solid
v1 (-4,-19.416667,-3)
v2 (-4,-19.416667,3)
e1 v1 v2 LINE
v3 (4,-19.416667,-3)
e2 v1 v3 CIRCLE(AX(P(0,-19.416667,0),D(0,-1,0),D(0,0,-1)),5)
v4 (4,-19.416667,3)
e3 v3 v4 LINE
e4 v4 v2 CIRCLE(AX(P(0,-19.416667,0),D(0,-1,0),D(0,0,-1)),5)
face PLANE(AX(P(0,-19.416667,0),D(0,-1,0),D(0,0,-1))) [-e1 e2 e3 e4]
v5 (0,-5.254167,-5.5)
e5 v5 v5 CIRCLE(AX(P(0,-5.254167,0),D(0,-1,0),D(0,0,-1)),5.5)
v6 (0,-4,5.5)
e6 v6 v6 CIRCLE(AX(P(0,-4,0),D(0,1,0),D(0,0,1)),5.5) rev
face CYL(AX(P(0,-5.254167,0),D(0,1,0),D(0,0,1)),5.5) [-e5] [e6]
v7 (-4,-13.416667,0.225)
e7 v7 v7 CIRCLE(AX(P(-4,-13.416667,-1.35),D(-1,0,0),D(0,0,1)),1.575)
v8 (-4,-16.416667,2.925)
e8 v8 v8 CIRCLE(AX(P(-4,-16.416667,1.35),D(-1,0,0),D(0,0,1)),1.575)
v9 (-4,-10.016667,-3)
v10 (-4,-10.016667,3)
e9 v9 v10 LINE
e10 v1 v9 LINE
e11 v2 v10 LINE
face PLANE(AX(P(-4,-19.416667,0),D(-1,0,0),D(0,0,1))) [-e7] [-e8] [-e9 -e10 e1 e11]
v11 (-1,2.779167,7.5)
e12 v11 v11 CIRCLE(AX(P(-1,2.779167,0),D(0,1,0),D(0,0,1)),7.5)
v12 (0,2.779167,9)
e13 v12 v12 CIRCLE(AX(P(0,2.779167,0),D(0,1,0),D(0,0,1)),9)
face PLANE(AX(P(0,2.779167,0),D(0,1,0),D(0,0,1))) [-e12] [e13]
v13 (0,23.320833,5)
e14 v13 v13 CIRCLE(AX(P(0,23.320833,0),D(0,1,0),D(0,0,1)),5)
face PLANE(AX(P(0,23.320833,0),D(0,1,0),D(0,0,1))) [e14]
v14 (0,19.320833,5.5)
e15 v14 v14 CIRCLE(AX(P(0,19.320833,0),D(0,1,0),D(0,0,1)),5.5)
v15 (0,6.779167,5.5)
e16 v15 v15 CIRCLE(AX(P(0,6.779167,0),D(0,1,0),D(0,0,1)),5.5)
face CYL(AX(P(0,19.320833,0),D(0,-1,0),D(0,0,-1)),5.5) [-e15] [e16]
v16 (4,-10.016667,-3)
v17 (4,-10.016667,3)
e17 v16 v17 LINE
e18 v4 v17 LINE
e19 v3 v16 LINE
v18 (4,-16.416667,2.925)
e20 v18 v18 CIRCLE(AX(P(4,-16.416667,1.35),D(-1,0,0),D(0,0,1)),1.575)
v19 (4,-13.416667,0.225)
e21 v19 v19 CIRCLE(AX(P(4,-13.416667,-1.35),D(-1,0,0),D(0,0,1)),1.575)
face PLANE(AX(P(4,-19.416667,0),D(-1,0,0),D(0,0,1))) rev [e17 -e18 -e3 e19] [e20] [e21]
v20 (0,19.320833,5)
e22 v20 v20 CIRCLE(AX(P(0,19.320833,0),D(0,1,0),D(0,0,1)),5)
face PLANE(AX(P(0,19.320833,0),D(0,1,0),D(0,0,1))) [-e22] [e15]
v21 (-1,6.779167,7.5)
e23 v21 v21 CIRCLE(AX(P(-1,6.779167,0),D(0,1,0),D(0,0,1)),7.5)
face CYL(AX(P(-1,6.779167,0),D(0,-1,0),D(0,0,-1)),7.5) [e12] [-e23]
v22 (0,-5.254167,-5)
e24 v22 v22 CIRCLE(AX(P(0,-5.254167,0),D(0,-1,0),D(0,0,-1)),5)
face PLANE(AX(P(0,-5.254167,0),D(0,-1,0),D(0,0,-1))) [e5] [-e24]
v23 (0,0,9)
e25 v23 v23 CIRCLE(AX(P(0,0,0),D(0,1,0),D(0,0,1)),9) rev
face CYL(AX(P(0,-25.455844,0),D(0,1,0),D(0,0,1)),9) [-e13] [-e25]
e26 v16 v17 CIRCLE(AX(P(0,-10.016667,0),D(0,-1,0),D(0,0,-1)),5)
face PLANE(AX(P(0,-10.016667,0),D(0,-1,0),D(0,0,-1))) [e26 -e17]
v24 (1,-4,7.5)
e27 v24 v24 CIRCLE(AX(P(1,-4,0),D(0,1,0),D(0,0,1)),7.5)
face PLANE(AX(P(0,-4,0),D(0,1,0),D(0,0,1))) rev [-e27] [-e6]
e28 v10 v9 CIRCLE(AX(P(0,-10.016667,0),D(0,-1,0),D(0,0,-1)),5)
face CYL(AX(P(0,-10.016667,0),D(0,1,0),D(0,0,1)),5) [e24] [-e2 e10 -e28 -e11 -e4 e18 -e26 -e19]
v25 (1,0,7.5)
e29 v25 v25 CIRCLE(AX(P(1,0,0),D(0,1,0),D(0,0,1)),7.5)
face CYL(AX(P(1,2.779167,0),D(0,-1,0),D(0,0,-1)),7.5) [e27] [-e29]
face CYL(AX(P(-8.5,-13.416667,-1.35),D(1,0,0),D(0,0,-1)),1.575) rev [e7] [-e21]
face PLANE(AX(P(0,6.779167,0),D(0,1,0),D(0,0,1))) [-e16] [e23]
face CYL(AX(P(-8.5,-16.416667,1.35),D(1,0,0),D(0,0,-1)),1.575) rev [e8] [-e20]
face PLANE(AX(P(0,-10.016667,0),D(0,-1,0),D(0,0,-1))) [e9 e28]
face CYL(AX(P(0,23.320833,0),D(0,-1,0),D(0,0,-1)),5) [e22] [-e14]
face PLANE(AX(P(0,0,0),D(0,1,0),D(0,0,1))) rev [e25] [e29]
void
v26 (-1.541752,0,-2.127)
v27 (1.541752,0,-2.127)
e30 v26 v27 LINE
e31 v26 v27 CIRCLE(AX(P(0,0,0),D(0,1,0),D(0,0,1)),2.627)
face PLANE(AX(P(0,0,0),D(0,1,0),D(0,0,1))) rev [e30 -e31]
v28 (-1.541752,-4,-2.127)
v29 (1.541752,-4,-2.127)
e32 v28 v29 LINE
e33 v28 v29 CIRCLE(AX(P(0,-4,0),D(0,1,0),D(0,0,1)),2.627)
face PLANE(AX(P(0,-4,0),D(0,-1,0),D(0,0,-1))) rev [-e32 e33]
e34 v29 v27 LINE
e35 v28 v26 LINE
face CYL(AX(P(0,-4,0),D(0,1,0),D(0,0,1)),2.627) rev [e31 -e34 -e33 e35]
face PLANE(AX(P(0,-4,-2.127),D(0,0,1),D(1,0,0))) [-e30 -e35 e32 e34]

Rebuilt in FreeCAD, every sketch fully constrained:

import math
import FreeCAD as App
import Part
import Sketcher
from FreeCAD import Vector

doc = App.newDocument("Part")
body = doc.addObject("PartDesign::Body", "Body")

# Sketch on XZ plane
sketch1 = body.newObject("Sketcher::SketchObject", "Sketch")
sketch1.AttachmentSupport = (doc.getObject("XZ_Plane"), [""])
sketch1.MapMode = "FlatFace"
sketch1.addGeometry(Part.Circle(Vector(-1, 0, 0), Vector(0, 0, 1), 8), False)
sketch1.addConstraint([
    Sketcher.Constraint("PointOnObject", 0, 3, -1),
    Sketcher.Constraint("Diameter", 0, 15.0),
    Sketcher.Constraint("DistanceX", 0, 3, -1, 1, 1.0),
])
pad1 = body.newObject("PartDesign::Pad", "Pad")
pad1.Profile = sketch1
pad1.Length = 6.779167
pad1.Reversed = True

# Sketch on XZ plane
sketch2 = body.newObject("Sketcher::SketchObject", "Sketch001")
sketch2.AttachmentSupport = (doc.getObject("XZ_Plane"), [""])
sketch2.MapMode = "FlatFace"
sketch2.addGeometry([
    Part.ArcOfCircle(Part.Circle(Vector(-1, 0, 0), Vector(0, 0, 1), 8), math.radians(82), math.radians(278)),
    Part.ArcOfCircle(Part.Circle(Vector(1, 0, 0), Vector(0, 0, 1), 8), math.radians(-98), math.radians(98)),
], False)
sketch2.addConstraint([
    Sketcher.Constraint("Coincident", 0, 1, 1, 2),
    Sketcher.Constraint("Coincident", 1, 1, 0, 2),
    Sketcher.Constraint("Equal", 0, 1),
    Sketcher.Constraint("Symmetric", 0, 3, 1, 3, -1, 1),
    Sketcher.Constraint("PointOnObject", 0, 3, -1),
    Sketcher.Constraint("Radius", 0, 7.5),
    Sketcher.Constraint("DistanceX", 0, 3, -1, 1, 1.0),
])
pad2 = body.newObject("PartDesign::Pad", "Pad001")
pad2.Profile = sketch2
pad2.Length = 2.779167
pad2.Reversed = True

# Sketch on XZ plane
sketch3 = body.newObject("Sketcher::SketchObject", "Sketch002")
sketch3.AttachmentSupport = (doc.getObject("XZ_Plane"), [""])
sketch3.MapMode = "FlatFace"
sketch3.AttachmentOffset = App.Placement(Vector(0, 0, 4), App.Rotation())
sketch3.addGeometry([
    Part.Circle(Vector(1, 0, 0), Vector(0, 0, 1), 7.5),
    Part.ArcOfCircle(Part.Circle(Vector(0, 0, 0), Vector(0, 0, 1), 2.6), math.radians(-54), math.radians(234)),
    Part.LineSegment(Vector(-1.5, -2.1, 0), Vector(1.5, -2.1, 0)),
], False)
sketch3.addConstraint([
    Sketcher.Constraint("Coincident", 1, 1, 2, 2),
    Sketcher.Constraint("Coincident", 2, 1, 1, 2),
    Sketcher.Constraint("Horizontal", 2),
    Sketcher.Constraint("Coincident", 1, 3, -1, 1),
    Sketcher.Constraint("PointOnObject", 0, 3, -1),
    Sketcher.Constraint("Diameter", 0, 15.0),
    Sketcher.Constraint("DistanceX", -1, 1, 0, 3, 1.0),
    Sketcher.Constraint("Radius", 1, 2.627),
    Sketcher.Constraint("DistanceY", 1, 1, -1, 1, 2.127),
])
pad3 = body.newObject("PartDesign::Pad", "Pad002")
pad3.Profile = sketch3
pad3.Length = 4
pad3.Reversed = True

# Sketch on XZ plane
sketch4 = body.newObject("Sketcher::SketchObject", "Sketch003")
sketch4.AttachmentSupport = (doc.getObject("XZ_Plane"), [""])
sketch4.MapMode = "FlatFace"
sketch4.AttachmentOffset = App.Placement(Vector(0, 0, 4), App.Rotation())
sketch4.addGeometry(Part.Circle(Vector(0, 0, 0), Vector(0, 0, 1), 5), False)
sketch4.addConstraint([
    Sketcher.Constraint("Coincident", 0, 3, -1, 1),
    Sketcher.Constraint("Diameter", 0, 10.0),
])
pad4 = body.newObject("PartDesign::Pad", "Pad003")
pad4.Profile = sketch4
pad4.Length = 6.016667

# Sketch on XZ plane
sketch5 = body.newObject("Sketcher::SketchObject", "Sketch004")
sketch5.AttachmentSupport = (doc.getObject("XZ_Plane"), [""])
sketch5.MapMode = "FlatFace"
sketch5.AttachmentOffset = App.Placement(Vector(0, 0, 4), App.Rotation())
sketch5.addGeometry([
    Part.Circle(Vector(0, 0, 0), Vector(0, 0, 1), 6),
    Part.Circle(Vector(0, 0, 0), Vector(0, 0, 1), 5),
], False)
sketch5.addConstraint([
    Sketcher.Constraint("Coincident", 0, 3, -1, 1),
    Sketcher.Constraint("Coincident", 1, 3, -1, 1),
    Sketcher.Constraint("Diameter", 0, 11.0),
    Sketcher.Constraint("Diameter", 1, 10.0),
])
pad5 = body.newObject("PartDesign::Pad", "Pad004")
pad5.Profile = sketch5
pad5.Length = 1.254167

# Sketch on XZ plane
sketch6 = body.newObject("Sketcher::SketchObject", "Sketch005")
sketch6.AttachmentSupport = (doc.getObject("XZ_Plane"), [""])
sketch6.MapMode = "FlatFace"
sketch6.AttachmentOffset = App.Placement(Vector(0, 0, -23.320833), App.Rotation())
sketch6.addGeometry(Part.Circle(Vector(0, 0, 0), Vector(0, 0, 1), 5), False)
sketch6.addConstraint([
    Sketcher.Constraint("Coincident", 0, 3, -1, 1),
    Sketcher.Constraint("Diameter", 0, 10.0),
])
pad6 = body.newObject("PartDesign::Pad", "Pad005")
pad6.Profile = sketch6
pad6.Length = 16.541667

# Sketch on XZ plane
sketch7 = body.newObject("Sketcher::SketchObject", "Sketch006")
sketch7.AttachmentSupport = (doc.getObject("XZ_Plane"), [""])
sketch7.MapMode = "FlatFace"
sketch7.AttachmentOffset = App.Placement(Vector(0, 0, -19.320833), App.Rotation())
sketch7.addGeometry([
    Part.Circle(Vector(0, 0, 0), Vector(0, 0, 1), 6),
    Part.Circle(Vector(0, 0, 0), Vector(0, 0, 1), 5),
], False)
sketch7.addConstraint([
    Sketcher.Constraint("Coincident", 0, 3, -1, 1),
    Sketcher.Constraint("Coincident", 1, 3, -1, 1),
    Sketcher.Constraint("Diameter", 0, 11.0),
    Sketcher.Constraint("Diameter", 1, 10.0),
])
pad7 = body.newObject("PartDesign::Pad", "Pad006")
pad7.Profile = sketch7
pad7.Length = 12.541667

# Sketch on XZ plane
sketch8 = body.newObject("Sketcher::SketchObject", "Sketch007")
sketch8.AttachmentSupport = (doc.getObject("XZ_Plane"), [""])
sketch8.MapMode = "FlatFace"
sketch8.AttachmentOffset = App.Placement(Vector(0, 0, 10.016667), App.Rotation())
sketch8.addGeometry([
    Part.LineSegment(Vector(-4, 3, 0), Vector(-4, -3, 0)),
    Part.ArcOfCircle(Part.Circle(Vector(0, 0, 0), Vector(0, 0, 1), 5), math.radians(-143), math.radians(-37)),
    Part.LineSegment(Vector(4, -3, 0), Vector(4, 3, 0)),
    Part.ArcOfCircle(Part.Circle(Vector(0, 0, 0), Vector(0, 0, 1), 5), math.radians(37), math.radians(143)),
], False)
sketch8.addConstraint([
    Sketcher.Constraint("Coincident", 0, 2, 1, 1),
    Sketcher.Constraint("Coincident", 1, 2, 2, 1),
    Sketcher.Constraint("Coincident", 2, 2, 3, 1),
    Sketcher.Constraint("Coincident", 3, 2, 0, 1),
    Sketcher.Constraint("Vertical", 0),
    Sketcher.Constraint("Vertical", 2),
    Sketcher.Constraint("Coincident", 1, 3, -1, 1),
    Sketcher.Constraint("Coincident", 3, 3, -1, 1),
    Sketcher.Constraint("Equal", 1, 3),
    Sketcher.Constraint("Horizontal", 0, 2, 1, 2),
    Sketcher.Constraint("Radius", 1, 5.0),
    Sketcher.Constraint("DistanceY", 0, 2, 0, 1, 6.0),
])
pad8 = body.newObject("PartDesign::Pad", "Pad007")
pad8.Profile = sketch8
pad8.Length = 9.4

# Sketch on YZ plane
sketch9 = body.newObject("Sketcher::SketchObject", "Sketch008")
sketch9.AttachmentSupport = (doc.getObject("YZ_Plane"), [""])
sketch9.MapMode = "FlatFace"
sketch9.AttachmentOffset = App.Placement(Vector(0, 0, 4), App.Rotation())
sketch9.addGeometry([
    Part.Circle(Vector(-16.4, 1.4, 0), Vector(0, 0, 1), 1.6),
    Part.Circle(Vector(-13.4, -1.4, 0), Vector(0, 0, 1), 1.6),
], False)
sketch9.addConstraint([
    Sketcher.Constraint("Equal", 0, 1),
    Sketcher.Constraint("Diameter", 0, 3.15),
    Sketcher.Constraint("DistanceX", 0, 3, 1, 3, 3.0),
    Sketcher.Constraint("DistanceY", 1, 3, 0, 3, 2.7),
    Sketcher.Constraint("DistanceY", -1, 1, 0, 3, 1.35),
    Sketcher.Constraint("DistanceX", 0, 3, -1, 1, 16.416667),
])
pocket1 = body.newObject("PartDesign::Pocket", "Pocket")
pocket1.Profile = sketch9
pocket1.Type = "ThroughAll"
pocket1.Midplane = True

# Sketch on XZ plane
sketch10 = body.newObject("Sketcher::SketchObject", "Sketch009")
sketch10.AttachmentSupport = (doc.getObject("XZ_Plane"), [""])
sketch10.MapMode = "FlatFace"
sketch10.addGeometry([
    Part.ArcOfCircle(Part.Circle(Vector(1, 0, 0), Vector(0, 0, 1), 8), math.radians(-98), math.radians(98)),
    Part.ArcOfCircle(Part.Circle(Vector(-1, 0, 0), Vector(0, 0, 1), 8), math.radians(-82), math.radians(82)),
], False)
sketch10.addConstraint([
    Sketcher.Constraint("Coincident", 0, 1, 1, 1),
    Sketcher.Constraint("Coincident", 1, 2, 0, 2),
    Sketcher.Constraint("Equal", 0, 1),
    Sketcher.Constraint("Symmetric", 0, 3, 1, 3, -1, 1),
    Sketcher.Constraint("PointOnObject", 0, 3, -1),
    Sketcher.Constraint("Radius", 0, 7.5),
    Sketcher.Constraint("DistanceX", -1, 1, 0, 3, 1.0),
])
pocket2 = body.newObject("PartDesign::Pocket", "Pocket001")
pocket2.Profile = sketch10
pocket2.Length = 2.779167

# Sketch on XZ plane
sketch11 = body.newObject("Sketcher::SketchObject", "Sketch010")
sketch11.AttachmentSupport = (doc.getObject("XZ_Plane"), [""])
sketch11.MapMode = "FlatFace"
sketch11.addGeometry(Part.Circle(Vector(0, 0, 0), Vector(0, 0, 1), 9), False)
sketch11.addConstraint([
    Sketcher.Constraint("Coincident", 0, 3, -1, 1),
    Sketcher.Constraint("Diameter", 0, 18.0),
])
pad9 = body.newObject("PartDesign::Pad", "Pad008")
pad9.Profile = sketch11
pad9.Length = 2.779167
pad9.Reversed = True

doc.recompute()
